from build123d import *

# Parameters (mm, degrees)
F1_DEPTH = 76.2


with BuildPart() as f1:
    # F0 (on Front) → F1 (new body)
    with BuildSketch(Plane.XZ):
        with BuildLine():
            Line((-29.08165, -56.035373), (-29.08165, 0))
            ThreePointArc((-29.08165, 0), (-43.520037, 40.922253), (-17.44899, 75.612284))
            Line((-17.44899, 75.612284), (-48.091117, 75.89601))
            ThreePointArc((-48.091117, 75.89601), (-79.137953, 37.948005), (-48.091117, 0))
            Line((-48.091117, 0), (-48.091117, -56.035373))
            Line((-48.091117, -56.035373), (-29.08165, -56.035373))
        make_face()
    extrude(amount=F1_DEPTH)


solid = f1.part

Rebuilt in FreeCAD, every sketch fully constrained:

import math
import FreeCAD as App
import Part
import Sketcher
from FreeCAD import Vector
Q = App.Units.Quantity

doc = App.newDocument("Part")
body = doc.addObject("PartDesign::Body", "Body")

# Sketch on XZ plane
sketch1 = body.newObject("Sketcher::SketchObject", "Sketch")
sketch1.AttachmentSupport = (doc.getObject("XZ_Plane"), [""])
sketch1.MapMode = "FlatFace"
sketch1.addGeometry(Part.LineSegment(Vector(-29.08165, -56.035373, 0), Vector(-29.08165, 0, 0)), False)
sketch1.addGeometry(Part.ArcOfCircle(Part.Circle(Vector(1.890569, 33.936005, 0), Vector(0, 0, 1), 45.944866), math.radians(114.893297), math.radians(227.614377)), False)
sketch1.addGeometry(Part.LineSegment(Vector(-17.44899, 75.612284, 0), Vector(-48.091117, 75.89601, 0)), False)
sketch1.addGeometry(Part.ArcOfCircle(Part.Circle(Vector(-40.422943, 37.948005, 0), Vector(0, 0, 1), 38.71501), math.radians(101.423957), math.radians(258.576043)), False)
sketch1.addGeometry(Part.LineSegment(Vector(-48.091117, 0, 0), Vector(-48.091117, -56.035373, 0)), False)
sketch1.addGeometry(Part.LineSegment(Vector(-48.091117, -56.035373, 0), Vector(-29.08165, -56.035373, 0)), False)
sketch1.addConstraint(Sketcher.Constraint("Coincident", 0, 2, 1, 2))
sketch1.addConstraint(Sketcher.Constraint("Coincident", 1, 1, 2, 1))
sketch1.addConstraint(Sketcher.Constraint("Coincident", 2, 2, 3, 1))
sketch1.addConstraint(Sketcher.Constraint("Coincident", 3, 2, 4, 1))
sketch1.addConstraint(Sketcher.Constraint("Coincident", 4, 2, 5, 1))
sketch1.addConstraint(Sketcher.Constraint("Coincident", 5, 2, 0, 1))
sketch1.addConstraint(Sketcher.Constraint("Vertical", 0))
sketch1.addConstraint(Sketcher.Constraint("Vertical", 4))
sketch1.addConstraint(Sketcher.Constraint("Horizontal", 5))
sketch1.addConstraint(Sketcher.Constraint("PointOnObject", 0, 2, -1))
sketch1.addConstraint(Sketcher.Constraint("PointOnObject", 3, 2, -1))
sketch1.addConstraint(Sketcher.Constraint("Vertical", 2, 2, 3, 2))
sketch1.addConstraint(Sketcher.Constraint("Radius", 3, 38.71501))
sketch1.addConstraint(Sketcher.Constraint("Radius", 1, 45.944866))
sketch1.addConstraint(Sketcher.Constraint("DistanceX", 1, 1, 1, 3, Q("0.7613999 in")))
sketch1.addConstraint(Sketcher.Constraint("DistanceY", 1, 3, 3, 3, 4.012))
sketch1.addConstraint(Sketcher.Constraint("Distance", 2, 30.643441))
sketch1.addConstraint(Sketcher.Constraint("DistanceX", 5, 1, 5, 2, 19.009467))
sketch1.addConstraint(Sketcher.Constraint("DistanceY", 0, 1, 0, 2, 56.035373))
sketch1.addConstraint(Sketcher.Constraint("DistanceX", -1, 1, 1, 3, 1.890569))
pad1 = body.newObject("PartDesign::Pad", "Pad")
pad1.Profile = sketch1
pad1.Length = Q("3 in")

doc.recompute()
